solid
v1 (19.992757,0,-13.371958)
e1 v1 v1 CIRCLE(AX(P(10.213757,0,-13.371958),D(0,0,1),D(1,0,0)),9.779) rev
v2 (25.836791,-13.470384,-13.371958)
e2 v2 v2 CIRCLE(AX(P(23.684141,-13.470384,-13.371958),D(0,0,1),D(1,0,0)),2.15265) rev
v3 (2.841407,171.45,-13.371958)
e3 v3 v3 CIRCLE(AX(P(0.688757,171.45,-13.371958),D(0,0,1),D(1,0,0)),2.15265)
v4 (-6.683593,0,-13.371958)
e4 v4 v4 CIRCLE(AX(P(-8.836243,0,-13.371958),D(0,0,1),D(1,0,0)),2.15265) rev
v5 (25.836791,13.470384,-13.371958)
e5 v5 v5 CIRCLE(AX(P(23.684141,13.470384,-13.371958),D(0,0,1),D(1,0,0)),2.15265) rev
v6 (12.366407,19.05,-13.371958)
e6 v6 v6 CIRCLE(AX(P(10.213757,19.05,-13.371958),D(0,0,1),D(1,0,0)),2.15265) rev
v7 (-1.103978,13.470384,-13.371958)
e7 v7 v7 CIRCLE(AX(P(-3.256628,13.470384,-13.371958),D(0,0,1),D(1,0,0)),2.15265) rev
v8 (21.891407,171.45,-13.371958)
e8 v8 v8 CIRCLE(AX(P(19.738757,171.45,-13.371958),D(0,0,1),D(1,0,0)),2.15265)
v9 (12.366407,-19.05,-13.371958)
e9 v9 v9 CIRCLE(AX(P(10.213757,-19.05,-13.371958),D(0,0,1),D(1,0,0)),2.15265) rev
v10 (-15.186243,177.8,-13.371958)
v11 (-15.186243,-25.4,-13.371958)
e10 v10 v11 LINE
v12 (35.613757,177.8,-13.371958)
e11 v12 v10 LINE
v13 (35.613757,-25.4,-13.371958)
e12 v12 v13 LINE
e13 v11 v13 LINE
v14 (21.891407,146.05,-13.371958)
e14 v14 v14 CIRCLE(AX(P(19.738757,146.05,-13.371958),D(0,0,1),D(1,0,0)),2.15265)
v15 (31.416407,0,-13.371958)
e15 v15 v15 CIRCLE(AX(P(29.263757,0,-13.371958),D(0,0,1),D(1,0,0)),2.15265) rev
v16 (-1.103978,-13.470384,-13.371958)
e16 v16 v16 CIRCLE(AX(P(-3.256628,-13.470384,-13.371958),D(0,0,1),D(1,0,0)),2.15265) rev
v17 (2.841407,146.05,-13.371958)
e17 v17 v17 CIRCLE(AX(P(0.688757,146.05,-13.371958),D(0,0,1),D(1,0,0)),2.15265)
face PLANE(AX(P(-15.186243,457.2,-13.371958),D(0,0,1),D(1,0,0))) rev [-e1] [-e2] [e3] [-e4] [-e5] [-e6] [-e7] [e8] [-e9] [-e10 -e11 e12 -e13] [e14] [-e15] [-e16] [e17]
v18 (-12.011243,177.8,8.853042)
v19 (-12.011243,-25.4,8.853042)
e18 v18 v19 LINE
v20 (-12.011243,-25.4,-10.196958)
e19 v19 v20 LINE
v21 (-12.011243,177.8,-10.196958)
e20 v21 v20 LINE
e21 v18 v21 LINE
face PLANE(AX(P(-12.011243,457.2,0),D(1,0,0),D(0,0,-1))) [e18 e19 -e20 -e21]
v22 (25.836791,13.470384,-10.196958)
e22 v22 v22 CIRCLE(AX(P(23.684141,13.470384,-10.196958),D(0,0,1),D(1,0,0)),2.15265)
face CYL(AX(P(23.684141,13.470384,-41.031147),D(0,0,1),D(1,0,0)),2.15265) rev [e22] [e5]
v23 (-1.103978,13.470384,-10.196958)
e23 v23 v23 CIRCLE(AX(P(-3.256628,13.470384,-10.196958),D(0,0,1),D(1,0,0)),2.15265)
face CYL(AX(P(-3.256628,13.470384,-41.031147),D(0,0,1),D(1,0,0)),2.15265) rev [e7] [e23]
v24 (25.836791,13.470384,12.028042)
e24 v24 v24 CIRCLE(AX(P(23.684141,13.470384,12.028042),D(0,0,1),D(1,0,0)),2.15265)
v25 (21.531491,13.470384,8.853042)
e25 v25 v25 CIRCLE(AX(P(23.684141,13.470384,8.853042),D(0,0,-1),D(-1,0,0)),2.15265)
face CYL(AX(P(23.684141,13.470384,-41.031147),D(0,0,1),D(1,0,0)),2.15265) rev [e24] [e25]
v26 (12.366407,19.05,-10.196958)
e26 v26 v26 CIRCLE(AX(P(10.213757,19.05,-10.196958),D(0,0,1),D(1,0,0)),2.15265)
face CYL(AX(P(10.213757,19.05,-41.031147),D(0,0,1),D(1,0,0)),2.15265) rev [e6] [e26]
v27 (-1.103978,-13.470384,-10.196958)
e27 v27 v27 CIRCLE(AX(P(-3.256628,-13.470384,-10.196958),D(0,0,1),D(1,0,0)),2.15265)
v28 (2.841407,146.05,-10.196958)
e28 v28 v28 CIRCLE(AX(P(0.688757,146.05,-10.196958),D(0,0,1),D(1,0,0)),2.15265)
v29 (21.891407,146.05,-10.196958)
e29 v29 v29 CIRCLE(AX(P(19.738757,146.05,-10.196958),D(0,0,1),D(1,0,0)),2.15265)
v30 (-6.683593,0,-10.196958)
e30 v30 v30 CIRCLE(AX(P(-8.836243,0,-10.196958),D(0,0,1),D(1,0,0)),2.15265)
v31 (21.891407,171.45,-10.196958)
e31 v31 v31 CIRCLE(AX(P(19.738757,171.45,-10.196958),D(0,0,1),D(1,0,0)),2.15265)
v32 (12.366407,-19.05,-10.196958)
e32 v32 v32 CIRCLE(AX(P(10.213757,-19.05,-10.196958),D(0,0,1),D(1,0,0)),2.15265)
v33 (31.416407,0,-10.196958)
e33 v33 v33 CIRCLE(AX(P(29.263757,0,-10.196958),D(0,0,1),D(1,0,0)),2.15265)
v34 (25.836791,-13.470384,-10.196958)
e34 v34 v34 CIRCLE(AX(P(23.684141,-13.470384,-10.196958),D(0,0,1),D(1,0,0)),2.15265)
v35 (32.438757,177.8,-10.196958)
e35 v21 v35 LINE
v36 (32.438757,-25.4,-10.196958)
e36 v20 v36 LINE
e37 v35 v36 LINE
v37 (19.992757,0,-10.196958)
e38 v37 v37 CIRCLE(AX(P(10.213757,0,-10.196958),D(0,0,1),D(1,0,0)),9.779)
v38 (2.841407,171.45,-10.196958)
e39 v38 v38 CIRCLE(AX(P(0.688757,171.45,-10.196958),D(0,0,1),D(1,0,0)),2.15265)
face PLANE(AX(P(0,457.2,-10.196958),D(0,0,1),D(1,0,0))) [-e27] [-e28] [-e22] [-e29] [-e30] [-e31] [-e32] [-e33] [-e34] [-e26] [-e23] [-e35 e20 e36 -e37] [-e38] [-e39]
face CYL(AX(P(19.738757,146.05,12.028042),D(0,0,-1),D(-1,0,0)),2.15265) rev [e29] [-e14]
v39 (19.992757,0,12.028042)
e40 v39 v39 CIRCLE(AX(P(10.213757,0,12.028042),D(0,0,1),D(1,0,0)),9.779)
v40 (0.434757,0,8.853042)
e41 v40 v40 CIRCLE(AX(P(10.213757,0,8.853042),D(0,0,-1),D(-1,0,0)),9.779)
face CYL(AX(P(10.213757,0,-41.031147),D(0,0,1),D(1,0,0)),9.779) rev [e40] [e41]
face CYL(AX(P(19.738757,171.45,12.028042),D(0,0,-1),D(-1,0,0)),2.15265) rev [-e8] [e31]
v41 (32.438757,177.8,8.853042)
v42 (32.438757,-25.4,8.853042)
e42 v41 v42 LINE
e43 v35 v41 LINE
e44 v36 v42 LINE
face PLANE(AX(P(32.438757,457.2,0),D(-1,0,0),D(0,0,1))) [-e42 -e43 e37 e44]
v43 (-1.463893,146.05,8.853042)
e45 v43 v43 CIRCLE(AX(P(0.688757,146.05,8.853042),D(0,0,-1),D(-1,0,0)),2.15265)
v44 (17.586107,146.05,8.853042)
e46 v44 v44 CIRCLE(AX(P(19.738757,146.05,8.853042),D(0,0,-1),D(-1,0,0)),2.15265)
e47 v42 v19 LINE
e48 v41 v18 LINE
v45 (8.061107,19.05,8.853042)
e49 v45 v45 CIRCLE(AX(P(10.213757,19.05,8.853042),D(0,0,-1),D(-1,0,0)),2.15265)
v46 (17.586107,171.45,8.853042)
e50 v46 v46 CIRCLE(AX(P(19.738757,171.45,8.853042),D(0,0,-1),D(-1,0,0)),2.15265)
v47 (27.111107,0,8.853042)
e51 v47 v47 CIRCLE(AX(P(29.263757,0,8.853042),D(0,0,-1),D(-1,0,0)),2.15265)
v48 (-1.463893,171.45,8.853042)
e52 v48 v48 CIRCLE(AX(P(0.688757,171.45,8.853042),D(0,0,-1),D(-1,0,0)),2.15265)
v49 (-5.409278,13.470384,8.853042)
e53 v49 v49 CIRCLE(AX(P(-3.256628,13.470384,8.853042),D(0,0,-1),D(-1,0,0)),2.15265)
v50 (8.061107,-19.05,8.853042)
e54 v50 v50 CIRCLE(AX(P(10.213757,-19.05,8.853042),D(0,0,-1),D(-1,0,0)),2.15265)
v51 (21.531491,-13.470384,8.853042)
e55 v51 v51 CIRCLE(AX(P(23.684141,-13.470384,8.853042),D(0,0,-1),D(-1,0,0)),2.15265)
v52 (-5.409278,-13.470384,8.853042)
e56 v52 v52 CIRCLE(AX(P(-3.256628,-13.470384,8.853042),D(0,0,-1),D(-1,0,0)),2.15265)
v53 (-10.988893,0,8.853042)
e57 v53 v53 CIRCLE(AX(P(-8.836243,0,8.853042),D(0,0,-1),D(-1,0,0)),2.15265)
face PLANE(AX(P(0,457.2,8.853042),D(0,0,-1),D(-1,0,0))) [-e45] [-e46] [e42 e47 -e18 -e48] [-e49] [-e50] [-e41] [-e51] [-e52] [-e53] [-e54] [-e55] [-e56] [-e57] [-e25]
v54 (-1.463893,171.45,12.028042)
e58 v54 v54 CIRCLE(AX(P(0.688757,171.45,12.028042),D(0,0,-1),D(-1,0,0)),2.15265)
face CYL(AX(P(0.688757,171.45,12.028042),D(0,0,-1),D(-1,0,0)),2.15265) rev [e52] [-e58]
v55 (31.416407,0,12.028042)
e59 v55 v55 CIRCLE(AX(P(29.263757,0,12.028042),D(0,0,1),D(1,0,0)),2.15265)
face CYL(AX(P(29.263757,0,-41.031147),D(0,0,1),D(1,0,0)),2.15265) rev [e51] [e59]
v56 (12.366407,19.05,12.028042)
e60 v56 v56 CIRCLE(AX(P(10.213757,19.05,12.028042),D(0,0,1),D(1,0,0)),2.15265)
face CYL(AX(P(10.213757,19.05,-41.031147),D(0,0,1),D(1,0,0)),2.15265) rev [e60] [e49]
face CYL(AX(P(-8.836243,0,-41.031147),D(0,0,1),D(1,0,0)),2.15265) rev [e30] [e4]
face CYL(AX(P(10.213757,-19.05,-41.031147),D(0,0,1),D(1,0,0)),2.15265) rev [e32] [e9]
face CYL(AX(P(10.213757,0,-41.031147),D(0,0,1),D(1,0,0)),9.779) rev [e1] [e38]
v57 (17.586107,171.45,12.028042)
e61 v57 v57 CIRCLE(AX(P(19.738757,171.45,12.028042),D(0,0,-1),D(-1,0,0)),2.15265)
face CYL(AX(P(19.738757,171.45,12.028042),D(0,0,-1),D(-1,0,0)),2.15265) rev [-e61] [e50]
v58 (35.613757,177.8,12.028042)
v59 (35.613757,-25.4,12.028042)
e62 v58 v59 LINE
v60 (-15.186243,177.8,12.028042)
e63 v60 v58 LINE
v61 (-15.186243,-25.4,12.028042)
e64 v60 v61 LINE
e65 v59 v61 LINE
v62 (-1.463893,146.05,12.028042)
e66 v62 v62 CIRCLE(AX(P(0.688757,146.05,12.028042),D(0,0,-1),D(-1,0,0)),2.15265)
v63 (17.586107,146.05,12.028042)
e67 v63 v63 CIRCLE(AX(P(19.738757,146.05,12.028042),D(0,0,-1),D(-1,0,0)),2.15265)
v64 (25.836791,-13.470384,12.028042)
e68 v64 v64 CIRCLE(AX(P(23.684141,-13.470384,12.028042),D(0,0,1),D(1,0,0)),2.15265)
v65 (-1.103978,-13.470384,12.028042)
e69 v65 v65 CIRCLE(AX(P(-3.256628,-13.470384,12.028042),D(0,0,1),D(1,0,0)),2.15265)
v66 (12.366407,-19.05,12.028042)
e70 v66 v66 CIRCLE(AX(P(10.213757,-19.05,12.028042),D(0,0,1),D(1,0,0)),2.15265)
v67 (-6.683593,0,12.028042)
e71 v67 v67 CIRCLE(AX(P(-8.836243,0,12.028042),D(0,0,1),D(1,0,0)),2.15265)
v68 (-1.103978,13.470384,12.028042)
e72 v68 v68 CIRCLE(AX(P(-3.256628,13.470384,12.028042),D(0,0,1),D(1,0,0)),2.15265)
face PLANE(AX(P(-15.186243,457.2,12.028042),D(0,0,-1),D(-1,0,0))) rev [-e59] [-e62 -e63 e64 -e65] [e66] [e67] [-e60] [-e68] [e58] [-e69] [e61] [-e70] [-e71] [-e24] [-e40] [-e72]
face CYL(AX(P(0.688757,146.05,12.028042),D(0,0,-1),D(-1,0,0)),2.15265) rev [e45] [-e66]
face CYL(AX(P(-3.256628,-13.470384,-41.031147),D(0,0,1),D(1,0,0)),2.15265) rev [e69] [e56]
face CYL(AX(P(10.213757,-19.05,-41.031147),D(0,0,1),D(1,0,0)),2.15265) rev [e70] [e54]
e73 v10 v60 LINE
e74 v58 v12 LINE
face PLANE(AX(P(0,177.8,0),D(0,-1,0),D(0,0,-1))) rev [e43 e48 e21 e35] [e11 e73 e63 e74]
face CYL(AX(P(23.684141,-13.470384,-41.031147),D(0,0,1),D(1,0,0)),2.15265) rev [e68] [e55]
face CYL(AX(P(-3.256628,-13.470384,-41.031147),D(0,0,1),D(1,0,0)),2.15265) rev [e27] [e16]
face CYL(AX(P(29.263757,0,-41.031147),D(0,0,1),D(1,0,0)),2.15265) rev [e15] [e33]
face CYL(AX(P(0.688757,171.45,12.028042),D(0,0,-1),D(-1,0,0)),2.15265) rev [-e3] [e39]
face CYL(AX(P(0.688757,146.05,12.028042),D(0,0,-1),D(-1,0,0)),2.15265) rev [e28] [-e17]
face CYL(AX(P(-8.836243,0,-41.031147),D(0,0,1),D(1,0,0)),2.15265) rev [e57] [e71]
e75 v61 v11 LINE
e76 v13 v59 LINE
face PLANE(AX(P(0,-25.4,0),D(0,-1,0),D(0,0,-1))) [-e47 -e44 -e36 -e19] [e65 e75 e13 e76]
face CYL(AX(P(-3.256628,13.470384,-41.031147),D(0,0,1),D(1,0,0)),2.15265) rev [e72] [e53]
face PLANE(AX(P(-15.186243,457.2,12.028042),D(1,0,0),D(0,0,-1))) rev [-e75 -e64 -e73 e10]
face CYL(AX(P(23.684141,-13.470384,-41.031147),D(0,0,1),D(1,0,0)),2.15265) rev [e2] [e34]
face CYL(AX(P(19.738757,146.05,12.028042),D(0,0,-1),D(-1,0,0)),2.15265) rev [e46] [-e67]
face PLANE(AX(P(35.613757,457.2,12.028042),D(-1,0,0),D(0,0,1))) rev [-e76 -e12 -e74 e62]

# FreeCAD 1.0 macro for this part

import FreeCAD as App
import Part
import Sketcher
from FreeCAD import Vector
Q = App.Units.Quantity


def add_polygon(sketch, points):
    """Adds a closed chain of lines whose ends are joined by coincident constraints."""
    first, n = sketch.GeometryCount, len(points)
    for a, b in zip(points, points[1:] + points[:1]):
        sketch.addGeometry(Part.LineSegment(App.Vector(*a, 0), App.Vector(*b, 0)), False)
    for i in range(n):
        sketch.addConstraint(Sketcher.Constraint("Coincident", first + i, 2, first + (i + 1) % n, 1))

doc = App.newDocument("Part")
body = doc.addObject("PartDesign::Body", "Body")

sketch1 = doc.addObject("Sketcher::SketchObject", "Sketch")
body.addObject(sketch1)
sketch1.AttachmentSupport = (doc.XZ_Plane, [""])
sketch1.MapMode = "FlatFace"
add_polygon(sketch1, [(-15, -13), (-15, 12), (36, 12), (36, -13)])
add_polygon(sketch1, [(32, 9), (-12, 9), (-12, -10), (32, -10)])
sketch1.addConstraint([
    Sketcher.Constraint("Vertical", 0),
    Sketcher.Constraint("Horizontal", 1),
    Sketcher.Constraint("Vertical", 2),
    Sketcher.Constraint("Horizontal", 3),
    Sketcher.Constraint("Horizontal", 4),
    Sketcher.Constraint("Vertical", 5),
    Sketcher.Constraint("Horizontal", 6),
    Sketcher.Constraint("Vertical", 7),
    Sketcher.Constraint("DistanceX", 1, 1, 1, 2, Q("2 in")),
    Sketcher.Constraint("DistanceY", 0, 1, 0, 2, Q("1 in")),
    Sketcher.Constraint("DistanceX", 4, 2, 4, 1, Q("1.75 in")),
    Sketcher.Constraint("DistanceY", 5, 2, 5, 1, Q("0.75 in")),
    Sketcher.Constraint("DistanceX", 0, 2, 4, 2, Q("0.125 in")),
    Sketcher.Constraint("DistanceY", 4, 2, 0, 2, Q("0.125 in")),
    Sketcher.Constraint("DistanceX", 0, 2, -1, 1, 15.186243),
    Sketcher.Constraint("DistanceY", -1, 1, 0, 2, 12.028042),
])
pad1 = doc.addObject("PartDesign::Pad", "Pad")
body.addObject(pad1)
pad1.Profile = sketch1
pad1.Length = Q("18 in")
pad1.Reversed = True

sketch2 = doc.addObject("Sketcher::SketchObject", "Sketch001")
body.addObject(sketch2)
sketch2.AttachmentSupport = (doc.XZ_Plane, [""])
sketch2.MapMode = "FlatFace"
add_polygon(sketch2, [(-15, 12), (-15, -13), (36, -13), (36, 12)])
add_polygon(sketch2, [(32, -10), (-12, -10), (-12, 9), (32, 9)])
sketch2.addConstraint([
    Sketcher.Constraint("Vertical", 0),
    Sketcher.Constraint("Horizontal", 1),
    Sketcher.Constraint("Vertical", 2),
    Sketcher.Constraint("Horizontal", 3),
    Sketcher.Constraint("Horizontal", 4),
    Sketcher.Constraint("Vertical", 5),
    Sketcher.Constraint("Horizontal", 6),
    Sketcher.Constraint("Vertical", 7),
    Sketcher.Constraint("DistanceX", 1, 1, 1, 2, Q("2 in")),
    Sketcher.Constraint("DistanceY", 0, 2, 0, 1, Q("1 in")),
    Sketcher.Constraint("DistanceX", 4, 2, 4, 1, Q("1.75 in")),
    Sketcher.Constraint("DistanceY", 5, 1, 5, 2, Q("0.75 in")),
    Sketcher.Constraint("DistanceX", 0, 2, 4, 2, Q("0.125 in")),
    Sketcher.Constraint("DistanceY", 0, 2, 4, 2, Q("0.125 in")),
    Sketcher.Constraint("DistanceX", 0, 2, -1, 1, 15.186243),
    Sketcher.Constraint("DistanceY", 0, 2, -1, 1, 13.371958),
])
pad2 = doc.addObject("PartDesign::Pad", "Pad001")
body.addObject(pad2)
pad2.Profile = sketch2
pad2.Length = Q("1 in")

sketch3 = doc.addObject("Sketcher::SketchObject", "Sketch002")
body.addObject(sketch3)
sketch3.AttachmentSupport = (doc.XZ_Plane, [""])
sketch3.MapMode = "FlatFace"
sketch3.AttachmentOffset = App.Placement(Vector(0, 0, -18 * 25.4), App.Rotation())
add_polygon(sketch3, [(-15, -13), (-15, 12), (36, 12), (36, -13)])
add_polygon(sketch3, [(32, 9), (-12, 9), (-12, -10), (32, -10)])
sketch3.addConstraint([
    Sketcher.Constraint("Vertical", 0),
    Sketcher.Constraint("Horizontal", 1),
    Sketcher.Constraint("Vertical", 2),
    Sketcher.Constraint("Horizontal", 3),
    Sketcher.Constraint("Horizontal", 4),
    Sketcher.Constraint("Vertical", 5),
    Sketcher.Constraint("Horizontal", 6),
    Sketcher.Constraint("Vertical", 7),
    Sketcher.Constraint("DistanceX", 1, 1, 1, 2, Q("2 in")),
    Sketcher.Constraint("DistanceY", 0, 1, 0, 2, Q("1 in")),
    Sketcher.Constraint("DistanceX", 4, 2, 4, 1, Q("1.75 in")),
    Sketcher.Constraint("DistanceY", 5, 2, 5, 1, Q("0.75 in")),
    Sketcher.Constraint("DistanceX", 0, 2, 4, 2, Q("0.125 in")),
    Sketcher.Constraint("DistanceY", 4, 2, 0, 2, Q("0.125 in")),
    Sketcher.Constraint("DistanceX", 0, 2, -1, 1, 15.186243),
    Sketcher.Constraint("DistanceY", -1, 1, 0, 2, 12.028042),
])
pocket1 = doc.addObject("PartDesign::Pocket", "Pocket")
body.addObject(pocket1)
pocket1.Profile = sketch3
pocket1.Length = Q("8 in")
pocket1.Reversed = True

sketch4 = doc.addObject("Sketcher::SketchObject", "Sketch003")
body.addObject(sketch4)
sketch4.AttachmentSupport = (doc.XY_Plane, [""])
sketch4.MapMode = "FlatFace"
sketch4.AttachmentOffset = App.Placement(Vector(0, 0, 12.028042), App.Rotation())
sketch4.addGeometry([
    Part.Circle(Vector(10.2, 0, 0), Vector(0, 0, 1), 9.8),
    Part.Circle(Vector(29.3, 0, 0), Vector(0, 0, 1), 2.2),
    Part.Circle(Vector(23.7, 13.5, 0), Vector(0, 0, 1), 2.2),
    Part.Circle(Vector(10.2, 19.1, 0), Vector(0, 0, 1), 2.2),
    Part.Circle(Vector(-3.3, 13.5, 0), Vector(0, 0, 1), 2.2),
    Part.Circle(Vector(-8.8, 0, 0), Vector(0, 0, 1), 2.2),
    Part.Circle(Vector(-3.3, -13.5, 0), Vector(0, 0, 1), 2.2),
    Part.Circle(Vector(10.2, -19.1, 0), Vector(0, 0, 1), 2.2),
    Part.Circle(Vector(23.7, -13.5, 0), Vector(0, 0, 1), 2.2),
], False)
sketch4.addConstraint([
    Sketcher.Constraint("Equal", 1, 2),
    Sketcher.Constraint("Equal", 2, 3),
    Sketcher.Constraint("Equal", 3, 4),
    Sketcher.Constraint("Equal", 4, 5),
    Sketcher.Constraint("Equal", 5, 6),
    Sketcher.Constraint("Equal", 6, 7),
    Sketcher.Constraint("Equal", 7, 8),
    Sketcher.Constraint("Symmetric", 4, 3, 6, 3, -1),
    Sketcher.Constraint("Symmetric", 3, 3, 7, 3, -1),
    Sketcher.Constraint("Symmetric", 2, 3, 8, 3, -1),
    Sketcher.Constraint("PointOnObject", 0, 3, -1),
    Sketcher.Constraint("PointOnObject", 1, 3, -1),
    Sketcher.Constraint("PointOnObject", 5, 3, -1),
    Sketcher.Constraint("Horizontal", 2, 3, 4, 3),
    Sketcher.Constraint("Vertical", 0, 3, 3, 3),
    Sketcher.Constraint("Diameter", 0, Q("0.77 in")),
    Sketcher.Constraint("Diameter", 1, Q("0.1695 in")),
    Sketcher.Constraint("DistanceX", 5, 3, 1, 3, Q("1.5 in")),
    Sketcher.Constraint("DistanceY", -1, 1, 3, 3, Q("0.75 in")),
    Sketcher.Constraint("DistanceX", 0, 3, 1, 3, Q("0.75 in")),
    Sketcher.Constraint("DistanceX", -1, 1, 2, 3, 23.684141),
    Sketcher.Constraint("DistanceX", 4, 3, 2, 3, 26.940768),
    Sketcher.Constraint("DistanceY", 6, 3, 4, 3, 26.940768),
    Sketcher.Constraint("DistanceX", -1, 1, 0, 3, 10.213757),
])
pocket2 = doc.addObject("PartDesign::Pocket", "Pocket001")
body.addObject(pocket2)
pocket2.Profile = sketch4
pocket2.Length = Q("1 in")

sketch5 = doc.addObject("Sketcher::SketchObject", "Sketch004")
body.addObject(sketch5)
sketch5.AttachmentSupport = (doc.XZ_Plane, [""])
sketch5.MapMode = "FlatFace"
sketch5.AttachmentOffset = App.Placement(Vector(0, 0, -10 * 25.4), App.Rotation())
add_polygon(sketch5, [(-15, -13), (-15, 12), (36, 12), (36, -13)])
sketch5.addConstraint([
    Sketcher.Constraint("Vertical", 0),
    Sketcher.Constraint("Horizontal", 1),
    Sketcher.Constraint("Vertical", 2),
    Sketcher.Constraint("Horizontal", 3),
    Sketcher.Constraint("DistanceX", 1, 1, 1, 2, Q("2 in")),
    Sketcher.Constraint("DistanceY", 0, 1, 0, 2, Q("1 in")),
    Sketcher.Constraint("DistanceX", 0, 2, -1, 1, 15.186243),
    Sketcher.Constraint("DistanceY", -1, 1, 0, 2, 12.028042),
])
pocket3 = doc.addObject("PartDesign::Pocket", "Pocket002")
body.addObject(pocket3)
pocket3.Profile = sketch5
pocket3.Length = Q("3 in")
pocket3.Reversed = True

sketch6 = doc.addObject("Sketcher::SketchObject", "Sketch005")
body.addObject(sketch6)
sketch6.AttachmentSupport = (doc.XY_Plane, [""])
sketch6.MapMode = "FlatFace"
sketch6.AttachmentOffset = App.Placement(Vector(0, 0, -13.371958), App.Rotation())
sketch6.addGeometry([
    Part.Circle(Vector(19.7, 146.1, 0), Vector(0, 0, 1), 2.2),
    Part.Circle(Vector(0.7, 146.1, 0), Vector(0, 0, 1), 2.2),
    Part.Circle(Vector(19.7, 171.4, 0), Vector(0, 0, 1), 2.2),
    Part.Circle(Vector(0.7, 171.4, 0), Vector(0, 0, 1), 2.2),
], False)
sketch6.addConstraint([
    Sketcher.Constraint("Equal", 0, 1),
    Sketcher.Constraint("Equal", 1, 2),
    Sketcher.Constraint("Equal", 2, 3),
    Sketcher.Constraint("Horizontal", 0, 3, 1, 3),
    Sketcher.Constraint("Horizontal", 2, 3, 3, 3),
    Sketcher.Constraint("Vertical", 0, 3, 2, 3),
    Sketcher.Constraint("Vertical", 1, 3, 3, 3),
    Sketcher.Constraint("DistanceY", 0, 3, 2, 3, Q("1 in")),
    Sketcher.Constraint("Diameter", 0, Q("0.1695 in")),
    Sketcher.Constraint("DistanceY", -1, 1, 0, 3, Q("5.75 in")),
    Sketcher.Constraint("DistanceX", 1, 3, 0, 3, Q("0.75 in")),
    Sketcher.Constraint("DistanceX", -1, 1, 0, 3, 19.738757),
])
pocket4 = doc.addObject("PartDesign::Pocket", "Pocket003")
body.addObject(pocket4)
pocket4.Profile = sketch6
pocket4.Type = "ThroughAll"
pocket4.Midplane = True

doc.recompute()
